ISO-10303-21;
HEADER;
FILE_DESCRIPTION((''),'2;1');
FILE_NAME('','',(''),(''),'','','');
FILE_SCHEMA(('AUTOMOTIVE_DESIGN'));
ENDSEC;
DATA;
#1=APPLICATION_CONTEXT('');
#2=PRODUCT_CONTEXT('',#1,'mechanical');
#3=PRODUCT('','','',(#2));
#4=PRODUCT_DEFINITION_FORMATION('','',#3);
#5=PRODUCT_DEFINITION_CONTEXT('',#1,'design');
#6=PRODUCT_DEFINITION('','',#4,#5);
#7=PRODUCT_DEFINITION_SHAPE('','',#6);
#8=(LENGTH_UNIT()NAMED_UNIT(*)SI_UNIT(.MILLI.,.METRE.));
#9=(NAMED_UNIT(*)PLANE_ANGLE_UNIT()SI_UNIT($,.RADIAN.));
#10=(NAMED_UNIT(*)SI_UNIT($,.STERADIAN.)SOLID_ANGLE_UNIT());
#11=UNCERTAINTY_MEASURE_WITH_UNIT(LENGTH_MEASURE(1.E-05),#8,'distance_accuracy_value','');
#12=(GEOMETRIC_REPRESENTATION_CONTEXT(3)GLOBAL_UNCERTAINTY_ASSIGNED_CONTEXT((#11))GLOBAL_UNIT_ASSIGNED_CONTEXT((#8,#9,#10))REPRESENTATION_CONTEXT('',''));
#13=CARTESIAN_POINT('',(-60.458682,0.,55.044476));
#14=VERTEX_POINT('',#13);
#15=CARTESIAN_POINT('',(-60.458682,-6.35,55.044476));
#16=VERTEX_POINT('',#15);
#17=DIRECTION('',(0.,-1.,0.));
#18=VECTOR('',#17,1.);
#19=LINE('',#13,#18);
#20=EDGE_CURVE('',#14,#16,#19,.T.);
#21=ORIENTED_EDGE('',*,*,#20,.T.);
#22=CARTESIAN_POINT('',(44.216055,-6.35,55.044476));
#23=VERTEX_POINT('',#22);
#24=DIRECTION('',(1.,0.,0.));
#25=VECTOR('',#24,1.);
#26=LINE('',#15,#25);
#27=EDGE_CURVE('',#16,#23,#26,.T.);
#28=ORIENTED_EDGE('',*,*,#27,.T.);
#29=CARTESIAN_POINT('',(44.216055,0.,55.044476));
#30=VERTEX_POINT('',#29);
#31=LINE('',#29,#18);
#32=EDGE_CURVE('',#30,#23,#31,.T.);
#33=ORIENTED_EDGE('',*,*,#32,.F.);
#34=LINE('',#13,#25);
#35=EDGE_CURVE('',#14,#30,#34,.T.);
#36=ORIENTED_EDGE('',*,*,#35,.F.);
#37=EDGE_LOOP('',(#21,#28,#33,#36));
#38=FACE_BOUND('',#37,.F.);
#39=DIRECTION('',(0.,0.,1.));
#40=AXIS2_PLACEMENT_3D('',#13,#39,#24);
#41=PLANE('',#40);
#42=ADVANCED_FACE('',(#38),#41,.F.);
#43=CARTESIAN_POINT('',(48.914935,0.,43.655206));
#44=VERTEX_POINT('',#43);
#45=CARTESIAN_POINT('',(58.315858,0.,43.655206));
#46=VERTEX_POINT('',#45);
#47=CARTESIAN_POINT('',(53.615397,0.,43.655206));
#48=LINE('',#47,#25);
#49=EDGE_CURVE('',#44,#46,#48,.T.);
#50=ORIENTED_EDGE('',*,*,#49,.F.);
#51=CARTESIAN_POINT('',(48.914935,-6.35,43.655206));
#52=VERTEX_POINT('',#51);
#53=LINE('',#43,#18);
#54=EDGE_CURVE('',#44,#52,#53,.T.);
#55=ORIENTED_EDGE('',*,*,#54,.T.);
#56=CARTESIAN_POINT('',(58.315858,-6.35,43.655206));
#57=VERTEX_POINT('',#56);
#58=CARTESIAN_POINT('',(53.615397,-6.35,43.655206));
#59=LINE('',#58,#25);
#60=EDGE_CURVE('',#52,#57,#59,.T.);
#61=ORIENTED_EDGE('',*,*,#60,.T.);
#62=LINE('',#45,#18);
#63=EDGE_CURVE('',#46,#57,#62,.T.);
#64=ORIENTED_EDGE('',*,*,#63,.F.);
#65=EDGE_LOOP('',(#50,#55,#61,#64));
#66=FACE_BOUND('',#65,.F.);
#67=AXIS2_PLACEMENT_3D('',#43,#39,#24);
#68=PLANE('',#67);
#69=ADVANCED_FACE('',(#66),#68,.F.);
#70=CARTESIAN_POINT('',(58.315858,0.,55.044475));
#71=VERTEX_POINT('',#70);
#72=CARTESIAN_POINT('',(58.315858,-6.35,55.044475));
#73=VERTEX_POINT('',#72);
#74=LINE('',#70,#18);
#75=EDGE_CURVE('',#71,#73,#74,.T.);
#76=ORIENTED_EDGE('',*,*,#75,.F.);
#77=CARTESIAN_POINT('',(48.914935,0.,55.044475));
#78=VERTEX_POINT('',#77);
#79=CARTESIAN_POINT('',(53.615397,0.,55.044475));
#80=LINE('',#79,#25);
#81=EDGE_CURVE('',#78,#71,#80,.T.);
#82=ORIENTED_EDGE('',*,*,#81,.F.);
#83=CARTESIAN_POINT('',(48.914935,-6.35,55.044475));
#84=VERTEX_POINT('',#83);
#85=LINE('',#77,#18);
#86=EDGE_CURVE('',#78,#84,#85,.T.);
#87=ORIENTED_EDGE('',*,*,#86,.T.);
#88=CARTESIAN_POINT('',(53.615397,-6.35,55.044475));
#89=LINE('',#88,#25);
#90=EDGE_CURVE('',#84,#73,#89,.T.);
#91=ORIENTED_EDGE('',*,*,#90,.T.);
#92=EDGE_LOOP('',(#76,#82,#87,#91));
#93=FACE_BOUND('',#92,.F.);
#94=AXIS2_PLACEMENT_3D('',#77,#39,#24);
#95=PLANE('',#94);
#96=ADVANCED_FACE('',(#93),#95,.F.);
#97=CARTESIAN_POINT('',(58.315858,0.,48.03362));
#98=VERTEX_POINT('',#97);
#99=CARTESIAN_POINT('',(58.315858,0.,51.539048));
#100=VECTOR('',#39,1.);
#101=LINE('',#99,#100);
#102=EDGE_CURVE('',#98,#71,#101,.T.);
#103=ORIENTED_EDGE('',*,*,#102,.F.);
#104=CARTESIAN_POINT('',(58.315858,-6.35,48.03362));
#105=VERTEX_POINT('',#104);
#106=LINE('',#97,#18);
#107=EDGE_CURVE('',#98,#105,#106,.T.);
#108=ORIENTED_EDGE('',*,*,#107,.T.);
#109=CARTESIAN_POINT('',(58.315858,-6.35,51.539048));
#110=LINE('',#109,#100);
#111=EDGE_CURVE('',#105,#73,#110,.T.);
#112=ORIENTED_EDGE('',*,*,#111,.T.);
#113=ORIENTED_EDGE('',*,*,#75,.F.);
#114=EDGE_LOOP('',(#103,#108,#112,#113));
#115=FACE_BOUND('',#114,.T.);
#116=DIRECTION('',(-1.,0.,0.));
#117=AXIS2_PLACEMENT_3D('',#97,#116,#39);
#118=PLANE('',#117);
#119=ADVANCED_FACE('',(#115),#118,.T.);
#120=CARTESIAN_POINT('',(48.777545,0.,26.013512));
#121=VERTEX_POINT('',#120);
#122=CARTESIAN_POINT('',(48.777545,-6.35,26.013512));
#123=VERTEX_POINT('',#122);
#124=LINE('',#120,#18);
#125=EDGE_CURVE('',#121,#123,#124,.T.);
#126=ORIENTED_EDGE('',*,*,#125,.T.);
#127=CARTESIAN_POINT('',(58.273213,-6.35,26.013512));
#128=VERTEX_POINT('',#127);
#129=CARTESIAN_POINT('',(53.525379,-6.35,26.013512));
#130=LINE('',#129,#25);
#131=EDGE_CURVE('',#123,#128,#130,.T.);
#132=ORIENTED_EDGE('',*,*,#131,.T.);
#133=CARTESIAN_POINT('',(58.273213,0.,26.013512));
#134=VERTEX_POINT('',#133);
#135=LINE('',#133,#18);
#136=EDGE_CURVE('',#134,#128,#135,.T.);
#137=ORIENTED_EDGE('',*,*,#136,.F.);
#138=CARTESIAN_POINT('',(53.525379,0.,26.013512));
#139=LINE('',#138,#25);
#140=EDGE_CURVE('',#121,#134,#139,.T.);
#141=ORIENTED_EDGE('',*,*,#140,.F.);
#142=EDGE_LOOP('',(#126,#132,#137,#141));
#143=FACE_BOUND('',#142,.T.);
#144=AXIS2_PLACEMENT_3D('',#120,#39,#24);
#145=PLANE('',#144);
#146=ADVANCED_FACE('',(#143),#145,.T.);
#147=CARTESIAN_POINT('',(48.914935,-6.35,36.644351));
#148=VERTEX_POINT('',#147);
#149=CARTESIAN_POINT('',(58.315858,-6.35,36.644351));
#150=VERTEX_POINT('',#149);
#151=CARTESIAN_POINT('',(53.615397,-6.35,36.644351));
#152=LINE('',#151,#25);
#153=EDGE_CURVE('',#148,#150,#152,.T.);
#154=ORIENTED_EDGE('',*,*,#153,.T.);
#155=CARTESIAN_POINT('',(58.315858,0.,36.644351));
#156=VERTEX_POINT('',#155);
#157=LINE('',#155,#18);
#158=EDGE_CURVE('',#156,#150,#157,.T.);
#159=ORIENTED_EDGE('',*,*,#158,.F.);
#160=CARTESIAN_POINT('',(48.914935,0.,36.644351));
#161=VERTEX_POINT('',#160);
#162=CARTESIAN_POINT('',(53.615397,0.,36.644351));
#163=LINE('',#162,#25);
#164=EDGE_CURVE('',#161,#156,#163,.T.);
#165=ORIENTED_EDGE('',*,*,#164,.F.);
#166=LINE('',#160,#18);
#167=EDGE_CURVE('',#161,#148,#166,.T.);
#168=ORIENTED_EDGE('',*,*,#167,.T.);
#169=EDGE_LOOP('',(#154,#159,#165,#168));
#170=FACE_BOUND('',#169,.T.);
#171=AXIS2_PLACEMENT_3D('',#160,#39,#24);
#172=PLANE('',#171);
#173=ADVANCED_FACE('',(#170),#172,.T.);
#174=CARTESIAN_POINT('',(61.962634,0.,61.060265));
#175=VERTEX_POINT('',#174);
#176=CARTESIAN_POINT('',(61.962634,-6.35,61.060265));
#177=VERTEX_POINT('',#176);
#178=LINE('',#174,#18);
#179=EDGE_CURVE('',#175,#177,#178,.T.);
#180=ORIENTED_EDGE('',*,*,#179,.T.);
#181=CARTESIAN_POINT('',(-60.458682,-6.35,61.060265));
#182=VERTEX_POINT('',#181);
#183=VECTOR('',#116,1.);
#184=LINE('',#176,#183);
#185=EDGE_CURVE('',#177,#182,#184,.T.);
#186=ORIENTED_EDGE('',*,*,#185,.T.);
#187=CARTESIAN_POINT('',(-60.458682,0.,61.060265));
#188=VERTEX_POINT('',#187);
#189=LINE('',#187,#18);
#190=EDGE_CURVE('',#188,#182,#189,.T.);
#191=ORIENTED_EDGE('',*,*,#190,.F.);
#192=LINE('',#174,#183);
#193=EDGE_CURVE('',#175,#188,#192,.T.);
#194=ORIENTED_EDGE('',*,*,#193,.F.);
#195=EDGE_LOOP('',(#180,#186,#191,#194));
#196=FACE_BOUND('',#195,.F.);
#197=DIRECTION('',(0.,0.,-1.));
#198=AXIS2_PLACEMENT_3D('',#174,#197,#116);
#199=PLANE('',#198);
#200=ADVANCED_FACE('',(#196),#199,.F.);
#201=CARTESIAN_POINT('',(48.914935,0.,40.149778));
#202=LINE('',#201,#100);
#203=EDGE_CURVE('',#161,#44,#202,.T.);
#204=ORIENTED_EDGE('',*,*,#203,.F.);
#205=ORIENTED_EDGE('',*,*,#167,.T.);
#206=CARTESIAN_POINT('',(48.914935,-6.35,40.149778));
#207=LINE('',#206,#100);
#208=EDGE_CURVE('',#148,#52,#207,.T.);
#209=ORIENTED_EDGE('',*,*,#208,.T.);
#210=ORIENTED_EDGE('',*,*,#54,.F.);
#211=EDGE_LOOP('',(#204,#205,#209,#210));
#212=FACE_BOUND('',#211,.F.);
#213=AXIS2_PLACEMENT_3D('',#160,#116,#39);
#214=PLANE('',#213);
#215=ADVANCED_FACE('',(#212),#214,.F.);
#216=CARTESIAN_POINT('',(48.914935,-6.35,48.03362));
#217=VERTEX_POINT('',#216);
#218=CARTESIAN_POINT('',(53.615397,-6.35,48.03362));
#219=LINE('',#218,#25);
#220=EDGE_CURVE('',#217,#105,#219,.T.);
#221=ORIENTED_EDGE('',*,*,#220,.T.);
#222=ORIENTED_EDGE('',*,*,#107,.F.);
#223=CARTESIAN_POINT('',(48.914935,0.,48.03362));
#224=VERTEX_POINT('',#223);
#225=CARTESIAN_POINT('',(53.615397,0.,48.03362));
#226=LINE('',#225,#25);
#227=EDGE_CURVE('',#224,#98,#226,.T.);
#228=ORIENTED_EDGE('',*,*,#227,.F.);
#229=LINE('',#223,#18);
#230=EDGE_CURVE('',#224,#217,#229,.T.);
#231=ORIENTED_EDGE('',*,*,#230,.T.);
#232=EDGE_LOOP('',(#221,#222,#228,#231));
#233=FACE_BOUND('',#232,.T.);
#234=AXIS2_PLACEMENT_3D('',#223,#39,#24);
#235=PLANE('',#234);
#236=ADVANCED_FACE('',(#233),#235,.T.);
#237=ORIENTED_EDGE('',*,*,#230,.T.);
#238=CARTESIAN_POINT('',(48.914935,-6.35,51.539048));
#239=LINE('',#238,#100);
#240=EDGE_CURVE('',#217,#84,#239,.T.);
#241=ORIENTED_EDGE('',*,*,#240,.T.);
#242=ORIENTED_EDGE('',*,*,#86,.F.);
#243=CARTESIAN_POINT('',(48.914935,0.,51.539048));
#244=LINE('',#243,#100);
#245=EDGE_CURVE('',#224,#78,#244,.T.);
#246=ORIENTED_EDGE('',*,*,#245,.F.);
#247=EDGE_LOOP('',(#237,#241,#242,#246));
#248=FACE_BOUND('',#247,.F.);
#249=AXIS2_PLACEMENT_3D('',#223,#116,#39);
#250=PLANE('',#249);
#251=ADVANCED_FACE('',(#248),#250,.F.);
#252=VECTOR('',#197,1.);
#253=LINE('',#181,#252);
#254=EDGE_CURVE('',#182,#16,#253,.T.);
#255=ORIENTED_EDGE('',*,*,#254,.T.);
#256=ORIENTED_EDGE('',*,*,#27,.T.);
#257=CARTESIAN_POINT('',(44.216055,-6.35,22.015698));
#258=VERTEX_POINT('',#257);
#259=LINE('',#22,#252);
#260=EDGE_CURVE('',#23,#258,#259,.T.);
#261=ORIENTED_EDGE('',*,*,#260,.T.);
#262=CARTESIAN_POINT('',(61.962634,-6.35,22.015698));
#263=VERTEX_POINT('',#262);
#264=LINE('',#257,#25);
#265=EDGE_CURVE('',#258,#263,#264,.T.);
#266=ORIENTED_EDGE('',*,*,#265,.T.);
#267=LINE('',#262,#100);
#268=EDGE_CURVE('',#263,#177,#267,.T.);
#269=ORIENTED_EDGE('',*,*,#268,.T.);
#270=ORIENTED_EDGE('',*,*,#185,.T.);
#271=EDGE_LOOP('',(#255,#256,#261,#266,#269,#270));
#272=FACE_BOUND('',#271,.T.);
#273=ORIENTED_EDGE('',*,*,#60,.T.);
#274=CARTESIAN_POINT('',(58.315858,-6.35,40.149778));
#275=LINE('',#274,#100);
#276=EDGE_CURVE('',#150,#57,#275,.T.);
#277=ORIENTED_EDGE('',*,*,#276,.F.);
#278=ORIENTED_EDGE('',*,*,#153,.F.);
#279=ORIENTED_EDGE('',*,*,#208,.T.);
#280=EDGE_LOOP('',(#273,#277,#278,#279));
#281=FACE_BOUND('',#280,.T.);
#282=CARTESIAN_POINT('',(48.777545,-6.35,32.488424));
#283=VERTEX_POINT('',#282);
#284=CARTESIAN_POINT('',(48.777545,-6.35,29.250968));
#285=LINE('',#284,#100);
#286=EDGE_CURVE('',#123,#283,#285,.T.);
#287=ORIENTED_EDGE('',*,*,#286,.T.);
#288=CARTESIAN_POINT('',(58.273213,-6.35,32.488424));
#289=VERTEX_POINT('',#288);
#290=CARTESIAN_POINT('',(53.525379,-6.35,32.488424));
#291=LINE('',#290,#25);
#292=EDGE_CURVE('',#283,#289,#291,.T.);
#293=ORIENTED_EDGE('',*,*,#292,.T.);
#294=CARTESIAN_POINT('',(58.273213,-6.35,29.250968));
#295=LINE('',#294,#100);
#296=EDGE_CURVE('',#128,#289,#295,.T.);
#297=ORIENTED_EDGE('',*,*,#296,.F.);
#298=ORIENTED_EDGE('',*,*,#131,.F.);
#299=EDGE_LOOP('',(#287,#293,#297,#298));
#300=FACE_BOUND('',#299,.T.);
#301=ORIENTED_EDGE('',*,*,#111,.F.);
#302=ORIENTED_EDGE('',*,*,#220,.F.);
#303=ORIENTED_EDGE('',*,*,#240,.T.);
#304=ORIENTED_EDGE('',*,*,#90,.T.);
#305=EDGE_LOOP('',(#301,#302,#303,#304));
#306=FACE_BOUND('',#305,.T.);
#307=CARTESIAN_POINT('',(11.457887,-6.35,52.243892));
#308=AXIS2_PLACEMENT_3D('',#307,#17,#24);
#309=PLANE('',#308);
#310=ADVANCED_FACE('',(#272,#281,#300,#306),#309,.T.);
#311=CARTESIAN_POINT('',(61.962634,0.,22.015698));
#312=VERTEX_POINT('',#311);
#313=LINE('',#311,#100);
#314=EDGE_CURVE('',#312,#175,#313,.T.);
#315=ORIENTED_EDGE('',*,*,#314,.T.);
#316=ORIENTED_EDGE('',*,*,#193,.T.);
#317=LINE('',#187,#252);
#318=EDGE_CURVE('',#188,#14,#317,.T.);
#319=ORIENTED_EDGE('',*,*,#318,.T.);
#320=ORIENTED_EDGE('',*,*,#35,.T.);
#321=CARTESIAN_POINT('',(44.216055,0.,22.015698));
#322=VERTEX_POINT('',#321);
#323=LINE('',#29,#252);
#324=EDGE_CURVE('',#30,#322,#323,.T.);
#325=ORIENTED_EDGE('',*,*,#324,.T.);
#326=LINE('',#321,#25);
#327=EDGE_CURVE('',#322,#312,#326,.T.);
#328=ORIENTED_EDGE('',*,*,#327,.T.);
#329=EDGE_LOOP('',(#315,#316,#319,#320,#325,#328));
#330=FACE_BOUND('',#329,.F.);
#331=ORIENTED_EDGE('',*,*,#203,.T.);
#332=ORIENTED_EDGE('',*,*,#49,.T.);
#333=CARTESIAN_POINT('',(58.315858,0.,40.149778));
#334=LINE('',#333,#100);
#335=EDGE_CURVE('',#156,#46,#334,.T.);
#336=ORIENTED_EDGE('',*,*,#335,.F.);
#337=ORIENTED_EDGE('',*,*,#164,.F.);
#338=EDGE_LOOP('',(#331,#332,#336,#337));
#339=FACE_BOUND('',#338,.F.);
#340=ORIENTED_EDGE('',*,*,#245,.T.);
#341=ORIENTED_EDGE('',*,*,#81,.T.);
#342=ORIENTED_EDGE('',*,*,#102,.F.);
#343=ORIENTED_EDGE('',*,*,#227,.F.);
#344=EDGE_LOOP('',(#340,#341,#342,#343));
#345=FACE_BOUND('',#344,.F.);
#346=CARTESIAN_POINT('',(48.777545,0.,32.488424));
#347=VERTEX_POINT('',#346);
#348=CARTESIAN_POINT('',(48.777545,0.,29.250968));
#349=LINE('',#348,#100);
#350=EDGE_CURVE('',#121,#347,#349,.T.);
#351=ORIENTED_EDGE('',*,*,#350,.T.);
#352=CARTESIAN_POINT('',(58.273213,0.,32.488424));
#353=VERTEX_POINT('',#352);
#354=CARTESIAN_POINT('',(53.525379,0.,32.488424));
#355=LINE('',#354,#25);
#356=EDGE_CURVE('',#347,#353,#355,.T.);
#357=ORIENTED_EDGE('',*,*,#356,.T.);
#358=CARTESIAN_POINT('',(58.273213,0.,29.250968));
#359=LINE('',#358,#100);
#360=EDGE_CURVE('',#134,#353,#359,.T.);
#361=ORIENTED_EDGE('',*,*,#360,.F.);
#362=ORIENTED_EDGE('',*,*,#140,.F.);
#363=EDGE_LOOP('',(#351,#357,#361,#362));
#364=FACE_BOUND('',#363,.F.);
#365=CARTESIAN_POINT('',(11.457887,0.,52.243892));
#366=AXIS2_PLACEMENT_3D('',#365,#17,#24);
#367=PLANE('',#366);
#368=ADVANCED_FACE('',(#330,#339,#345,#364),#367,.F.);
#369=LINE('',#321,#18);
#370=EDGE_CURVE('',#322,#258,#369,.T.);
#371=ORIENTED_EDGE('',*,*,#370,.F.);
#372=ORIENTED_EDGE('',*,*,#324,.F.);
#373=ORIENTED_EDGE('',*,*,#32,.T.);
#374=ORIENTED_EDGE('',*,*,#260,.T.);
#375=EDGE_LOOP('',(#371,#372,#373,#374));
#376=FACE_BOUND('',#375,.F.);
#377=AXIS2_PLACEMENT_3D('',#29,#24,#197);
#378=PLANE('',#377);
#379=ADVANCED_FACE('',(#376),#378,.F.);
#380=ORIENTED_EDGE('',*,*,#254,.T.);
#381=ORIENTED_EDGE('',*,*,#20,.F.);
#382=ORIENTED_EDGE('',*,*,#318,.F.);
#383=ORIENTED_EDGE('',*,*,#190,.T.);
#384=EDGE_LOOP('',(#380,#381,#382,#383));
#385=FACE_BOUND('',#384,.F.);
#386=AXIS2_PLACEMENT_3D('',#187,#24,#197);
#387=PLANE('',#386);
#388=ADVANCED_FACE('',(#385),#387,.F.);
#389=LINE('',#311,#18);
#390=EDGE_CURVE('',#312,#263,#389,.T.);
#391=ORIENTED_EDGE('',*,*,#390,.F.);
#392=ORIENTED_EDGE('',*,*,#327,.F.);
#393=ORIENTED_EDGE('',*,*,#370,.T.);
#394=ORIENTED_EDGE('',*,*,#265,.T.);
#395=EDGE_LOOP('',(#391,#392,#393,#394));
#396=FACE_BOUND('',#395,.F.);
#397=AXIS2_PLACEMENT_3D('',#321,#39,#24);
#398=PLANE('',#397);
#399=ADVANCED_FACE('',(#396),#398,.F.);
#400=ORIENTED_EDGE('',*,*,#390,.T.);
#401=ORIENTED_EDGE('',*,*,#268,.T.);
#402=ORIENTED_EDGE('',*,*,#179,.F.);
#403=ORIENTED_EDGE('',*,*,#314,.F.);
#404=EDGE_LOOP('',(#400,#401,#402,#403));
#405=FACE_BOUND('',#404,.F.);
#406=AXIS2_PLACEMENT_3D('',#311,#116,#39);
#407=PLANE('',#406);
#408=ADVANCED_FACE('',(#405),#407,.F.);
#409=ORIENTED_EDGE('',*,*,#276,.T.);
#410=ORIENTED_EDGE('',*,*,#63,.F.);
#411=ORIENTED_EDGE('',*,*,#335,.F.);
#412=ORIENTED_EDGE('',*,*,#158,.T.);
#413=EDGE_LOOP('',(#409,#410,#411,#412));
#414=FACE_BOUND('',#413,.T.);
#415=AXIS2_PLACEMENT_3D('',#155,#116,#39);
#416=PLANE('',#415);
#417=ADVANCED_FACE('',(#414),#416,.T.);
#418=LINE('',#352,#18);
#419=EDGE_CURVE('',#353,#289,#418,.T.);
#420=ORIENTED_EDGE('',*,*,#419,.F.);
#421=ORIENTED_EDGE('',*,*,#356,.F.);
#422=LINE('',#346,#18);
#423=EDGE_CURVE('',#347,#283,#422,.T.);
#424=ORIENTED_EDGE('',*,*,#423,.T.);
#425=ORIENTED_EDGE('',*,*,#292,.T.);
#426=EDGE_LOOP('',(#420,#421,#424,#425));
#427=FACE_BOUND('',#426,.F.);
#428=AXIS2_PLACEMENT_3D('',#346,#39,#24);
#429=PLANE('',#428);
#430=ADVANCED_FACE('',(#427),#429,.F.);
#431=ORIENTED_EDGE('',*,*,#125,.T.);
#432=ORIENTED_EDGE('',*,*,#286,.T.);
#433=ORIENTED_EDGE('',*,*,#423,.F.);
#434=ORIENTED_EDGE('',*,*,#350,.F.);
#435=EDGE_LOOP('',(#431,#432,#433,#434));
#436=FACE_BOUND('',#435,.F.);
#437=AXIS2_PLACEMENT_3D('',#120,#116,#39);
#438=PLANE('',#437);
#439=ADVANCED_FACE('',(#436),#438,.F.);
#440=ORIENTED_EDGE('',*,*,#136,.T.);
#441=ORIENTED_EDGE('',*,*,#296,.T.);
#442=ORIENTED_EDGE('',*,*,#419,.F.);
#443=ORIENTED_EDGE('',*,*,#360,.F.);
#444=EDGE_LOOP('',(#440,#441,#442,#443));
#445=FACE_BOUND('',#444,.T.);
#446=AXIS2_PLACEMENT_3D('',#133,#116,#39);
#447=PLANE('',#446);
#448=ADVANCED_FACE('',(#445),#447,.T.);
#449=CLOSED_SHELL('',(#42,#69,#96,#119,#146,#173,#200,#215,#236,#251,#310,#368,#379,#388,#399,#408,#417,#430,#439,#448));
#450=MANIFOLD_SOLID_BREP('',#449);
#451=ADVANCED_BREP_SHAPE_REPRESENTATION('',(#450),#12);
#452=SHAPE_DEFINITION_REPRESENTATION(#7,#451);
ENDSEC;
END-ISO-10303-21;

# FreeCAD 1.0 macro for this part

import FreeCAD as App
import Part
import Sketcher
Q = App.Units.Quantity

doc = App.newDocument("Part")
body = doc.addObject("PartDesign::Body", "Body")

# Sketch on XZ plane
sketch1 = doc.addObject("Sketcher::SketchObject", "Sketch")
body.addObject(sketch1)
sketch1.AttachmentSupport = (doc.XZ_Plane, [""])
sketch1.MapMode = "FlatFace"
sketch1.addGeometry([
    Part.LineSegment(App.Vector(62, 61, 0), App.Vector(-60, 61, 0)),  # 0
    Part.LineSegment(App.Vector(-60, 61, 0), App.Vector(-60, 55, 0)),  # 1
    Part.LineSegment(App.Vector(-60, 55, 0), App.Vector(44, 55, 0)),  # 2
    Part.LineSegment(App.Vector(44, 55, 0), App.Vector(44, 22, 0)),  # 3
    Part.LineSegment(App.Vector(44, 22, 0), App.Vector(62, 22, 0)),  # 4
    Part.LineSegment(App.Vector(62, 22, 0), App.Vector(62, 61, 0)),  # 5
    Part.LineSegment(App.Vector(58, 26, 0), App.Vector(49, 26, 0)),  # 6
    Part.LineSegment(App.Vector(49, 26, 0), App.Vector(49, 32, 0)),  # 7
    Part.LineSegment(App.Vector(49, 32, 0), App.Vector(58, 32, 0)),  # 8
    Part.LineSegment(App.Vector(58, 32, 0), App.Vector(58, 26, 0)),  # 9
    Part.LineSegment(App.Vector(58, 37, 0), App.Vector(49, 37, 0)),  # 10
    Part.LineSegment(App.Vector(49, 37, 0), App.Vector(49, 44, 0)),  # 11
    Part.LineSegment(App.Vector(49, 44, 0), App.Vector(58, 44, 0)),  # 12
    Part.LineSegment(App.Vector(58, 44, 0), App.Vector(58, 37, 0)),  # 13
    Part.LineSegment(App.Vector(58, 48, 0), App.Vector(49, 48, 0)),  # 14
    Part.LineSegment(App.Vector(49, 48, 0), App.Vector(49, 55, 0)),  # 15
    Part.LineSegment(App.Vector(49, 55, 0), App.Vector(58, 55, 0)),  # 16
    Part.LineSegment(App.Vector(58, 55, 0), App.Vector(58, 48, 0)),  # 17
], False)
sketch1.addConstraint([
    Sketcher.Constraint("Coincident", 0, 2, 1, 1),
    Sketcher.Constraint("Coincident", 1, 2, 2, 1),
    Sketcher.Constraint("Coincident", 2, 2, 3, 1),
    Sketcher.Constraint("Coincident", 3, 2, 4, 1),
    Sketcher.Constraint("Coincident", 4, 2, 5, 1),
    Sketcher.Constraint("Coincident", 5, 2, 0, 1),
    Sketcher.Constraint("Coincident", 6, 2, 7, 1),
    Sketcher.Constraint("Coincident", 7, 2, 8, 1),
    Sketcher.Constraint("Coincident", 8, 2, 9, 1),
    Sketcher.Constraint("Coincident", 9, 2, 6, 1),
    Sketcher.Constraint("Coincident", 10, 2, 11, 1),
    Sketcher.Constraint("Coincident", 11, 2, 12, 1),
    Sketcher.Constraint("Coincident", 12, 2, 13, 1),
    Sketcher.Constraint("Coincident", 13, 2, 10, 1),
    Sketcher.Constraint("Coincident", 14, 2, 15, 1),
    Sketcher.Constraint("Coincident", 15, 2, 16, 1),
    Sketcher.Constraint("Coincident", 16, 2, 17, 1),
    Sketcher.Constraint("Coincident", 17, 2, 14, 1),
    Sketcher.Constraint("Horizontal", 0),
    Sketcher.Constraint("Vertical", 1),
    Sketcher.Constraint("Horizontal", 2),
    Sketcher.Constraint("Vertical", 3),
    Sketcher.Constraint("Horizontal", 4),
    Sketcher.Constraint("Vertical", 5),
    Sketcher.Constraint("Horizontal", 6),
    Sketcher.Constraint("Vertical", 7),
    Sketcher.Constraint("Horizontal", 8),
    Sketcher.Constraint("Vertical", 9),
    Sketcher.Constraint("Horizontal", 10),
    Sketcher.Constraint("Vertical", 11),
    Sketcher.Constraint("Horizontal", 12),
    Sketcher.Constraint("Vertical", 13),
    Sketcher.Constraint("Horizontal", 14),
    Sketcher.Constraint("Vertical", 15),
    Sketcher.Constraint("Horizontal", 16),
    Sketcher.Constraint("Vertical", 17),
    Sketcher.Constraint("Horizontal", 2, 2, 15, 2),
    Sketcher.Constraint("Vertical", 11, 2, 14, 2),
    Sketcher.Constraint("Vertical", 13, 2, 16, 2),
    Sketcher.Constraint("Equal", 13, 15),
    Sketcher.Constraint("DistanceX", -1, 1, 12, 2, Q("2.2958999 in")),
    Sketcher.Constraint("DistanceX", 4, 1, 4, 2, Q("17.746579 mm")),
    Sketcher.Constraint("DistanceY", 1, 2, 1, 1, Q("6.015789 mm")),
    Sketcher.Constraint("DistanceY", 3, 2, 3, 1, Q("33.028778 mm")),
    Sketcher.Constraint("DistanceY", -1, 1, 3, 2, Q("22.015698 mm")),
    Sketcher.Constraint("DistanceX", 15, 2, 5, 2, Q("13.047699 mm")),
    Sketcher.Constraint("DistanceX", 0, 2, 0, 1, Q("122.421316 mm")),
    Sketcher.Constraint("DistanceX", 6, 2, 6, 1, Q("9.495668 mm")),
    Sketcher.Constraint("DistanceX", 10, 2, 10, 1, Q("9.400923 mm")),
    Sketcher.Constraint("DistanceY", 7, 1, 7, 2, Q("6.474912 mm")),
    Sketcher.Constraint("DistanceY", 11, 1, 11, 2, Q("7.010855 mm")),
    Sketcher.Constraint("DistanceY", -1, 1, 6, 2, Q("26.013512 mm")),
    Sketcher.Constraint("DistanceY", -1, 1, 10, 2, Q("36.644351 mm")),
    Sketcher.Constraint("DistanceX", 3, 2, 6, 2, Q("4.56149 mm")),
])
pad1 = doc.addObject("PartDesign::Pad", "Pad")
body.addObject(pad1)
pad1.Profile = sketch1
pad1.Length = Q("0.25 in")

doc.recompute()
